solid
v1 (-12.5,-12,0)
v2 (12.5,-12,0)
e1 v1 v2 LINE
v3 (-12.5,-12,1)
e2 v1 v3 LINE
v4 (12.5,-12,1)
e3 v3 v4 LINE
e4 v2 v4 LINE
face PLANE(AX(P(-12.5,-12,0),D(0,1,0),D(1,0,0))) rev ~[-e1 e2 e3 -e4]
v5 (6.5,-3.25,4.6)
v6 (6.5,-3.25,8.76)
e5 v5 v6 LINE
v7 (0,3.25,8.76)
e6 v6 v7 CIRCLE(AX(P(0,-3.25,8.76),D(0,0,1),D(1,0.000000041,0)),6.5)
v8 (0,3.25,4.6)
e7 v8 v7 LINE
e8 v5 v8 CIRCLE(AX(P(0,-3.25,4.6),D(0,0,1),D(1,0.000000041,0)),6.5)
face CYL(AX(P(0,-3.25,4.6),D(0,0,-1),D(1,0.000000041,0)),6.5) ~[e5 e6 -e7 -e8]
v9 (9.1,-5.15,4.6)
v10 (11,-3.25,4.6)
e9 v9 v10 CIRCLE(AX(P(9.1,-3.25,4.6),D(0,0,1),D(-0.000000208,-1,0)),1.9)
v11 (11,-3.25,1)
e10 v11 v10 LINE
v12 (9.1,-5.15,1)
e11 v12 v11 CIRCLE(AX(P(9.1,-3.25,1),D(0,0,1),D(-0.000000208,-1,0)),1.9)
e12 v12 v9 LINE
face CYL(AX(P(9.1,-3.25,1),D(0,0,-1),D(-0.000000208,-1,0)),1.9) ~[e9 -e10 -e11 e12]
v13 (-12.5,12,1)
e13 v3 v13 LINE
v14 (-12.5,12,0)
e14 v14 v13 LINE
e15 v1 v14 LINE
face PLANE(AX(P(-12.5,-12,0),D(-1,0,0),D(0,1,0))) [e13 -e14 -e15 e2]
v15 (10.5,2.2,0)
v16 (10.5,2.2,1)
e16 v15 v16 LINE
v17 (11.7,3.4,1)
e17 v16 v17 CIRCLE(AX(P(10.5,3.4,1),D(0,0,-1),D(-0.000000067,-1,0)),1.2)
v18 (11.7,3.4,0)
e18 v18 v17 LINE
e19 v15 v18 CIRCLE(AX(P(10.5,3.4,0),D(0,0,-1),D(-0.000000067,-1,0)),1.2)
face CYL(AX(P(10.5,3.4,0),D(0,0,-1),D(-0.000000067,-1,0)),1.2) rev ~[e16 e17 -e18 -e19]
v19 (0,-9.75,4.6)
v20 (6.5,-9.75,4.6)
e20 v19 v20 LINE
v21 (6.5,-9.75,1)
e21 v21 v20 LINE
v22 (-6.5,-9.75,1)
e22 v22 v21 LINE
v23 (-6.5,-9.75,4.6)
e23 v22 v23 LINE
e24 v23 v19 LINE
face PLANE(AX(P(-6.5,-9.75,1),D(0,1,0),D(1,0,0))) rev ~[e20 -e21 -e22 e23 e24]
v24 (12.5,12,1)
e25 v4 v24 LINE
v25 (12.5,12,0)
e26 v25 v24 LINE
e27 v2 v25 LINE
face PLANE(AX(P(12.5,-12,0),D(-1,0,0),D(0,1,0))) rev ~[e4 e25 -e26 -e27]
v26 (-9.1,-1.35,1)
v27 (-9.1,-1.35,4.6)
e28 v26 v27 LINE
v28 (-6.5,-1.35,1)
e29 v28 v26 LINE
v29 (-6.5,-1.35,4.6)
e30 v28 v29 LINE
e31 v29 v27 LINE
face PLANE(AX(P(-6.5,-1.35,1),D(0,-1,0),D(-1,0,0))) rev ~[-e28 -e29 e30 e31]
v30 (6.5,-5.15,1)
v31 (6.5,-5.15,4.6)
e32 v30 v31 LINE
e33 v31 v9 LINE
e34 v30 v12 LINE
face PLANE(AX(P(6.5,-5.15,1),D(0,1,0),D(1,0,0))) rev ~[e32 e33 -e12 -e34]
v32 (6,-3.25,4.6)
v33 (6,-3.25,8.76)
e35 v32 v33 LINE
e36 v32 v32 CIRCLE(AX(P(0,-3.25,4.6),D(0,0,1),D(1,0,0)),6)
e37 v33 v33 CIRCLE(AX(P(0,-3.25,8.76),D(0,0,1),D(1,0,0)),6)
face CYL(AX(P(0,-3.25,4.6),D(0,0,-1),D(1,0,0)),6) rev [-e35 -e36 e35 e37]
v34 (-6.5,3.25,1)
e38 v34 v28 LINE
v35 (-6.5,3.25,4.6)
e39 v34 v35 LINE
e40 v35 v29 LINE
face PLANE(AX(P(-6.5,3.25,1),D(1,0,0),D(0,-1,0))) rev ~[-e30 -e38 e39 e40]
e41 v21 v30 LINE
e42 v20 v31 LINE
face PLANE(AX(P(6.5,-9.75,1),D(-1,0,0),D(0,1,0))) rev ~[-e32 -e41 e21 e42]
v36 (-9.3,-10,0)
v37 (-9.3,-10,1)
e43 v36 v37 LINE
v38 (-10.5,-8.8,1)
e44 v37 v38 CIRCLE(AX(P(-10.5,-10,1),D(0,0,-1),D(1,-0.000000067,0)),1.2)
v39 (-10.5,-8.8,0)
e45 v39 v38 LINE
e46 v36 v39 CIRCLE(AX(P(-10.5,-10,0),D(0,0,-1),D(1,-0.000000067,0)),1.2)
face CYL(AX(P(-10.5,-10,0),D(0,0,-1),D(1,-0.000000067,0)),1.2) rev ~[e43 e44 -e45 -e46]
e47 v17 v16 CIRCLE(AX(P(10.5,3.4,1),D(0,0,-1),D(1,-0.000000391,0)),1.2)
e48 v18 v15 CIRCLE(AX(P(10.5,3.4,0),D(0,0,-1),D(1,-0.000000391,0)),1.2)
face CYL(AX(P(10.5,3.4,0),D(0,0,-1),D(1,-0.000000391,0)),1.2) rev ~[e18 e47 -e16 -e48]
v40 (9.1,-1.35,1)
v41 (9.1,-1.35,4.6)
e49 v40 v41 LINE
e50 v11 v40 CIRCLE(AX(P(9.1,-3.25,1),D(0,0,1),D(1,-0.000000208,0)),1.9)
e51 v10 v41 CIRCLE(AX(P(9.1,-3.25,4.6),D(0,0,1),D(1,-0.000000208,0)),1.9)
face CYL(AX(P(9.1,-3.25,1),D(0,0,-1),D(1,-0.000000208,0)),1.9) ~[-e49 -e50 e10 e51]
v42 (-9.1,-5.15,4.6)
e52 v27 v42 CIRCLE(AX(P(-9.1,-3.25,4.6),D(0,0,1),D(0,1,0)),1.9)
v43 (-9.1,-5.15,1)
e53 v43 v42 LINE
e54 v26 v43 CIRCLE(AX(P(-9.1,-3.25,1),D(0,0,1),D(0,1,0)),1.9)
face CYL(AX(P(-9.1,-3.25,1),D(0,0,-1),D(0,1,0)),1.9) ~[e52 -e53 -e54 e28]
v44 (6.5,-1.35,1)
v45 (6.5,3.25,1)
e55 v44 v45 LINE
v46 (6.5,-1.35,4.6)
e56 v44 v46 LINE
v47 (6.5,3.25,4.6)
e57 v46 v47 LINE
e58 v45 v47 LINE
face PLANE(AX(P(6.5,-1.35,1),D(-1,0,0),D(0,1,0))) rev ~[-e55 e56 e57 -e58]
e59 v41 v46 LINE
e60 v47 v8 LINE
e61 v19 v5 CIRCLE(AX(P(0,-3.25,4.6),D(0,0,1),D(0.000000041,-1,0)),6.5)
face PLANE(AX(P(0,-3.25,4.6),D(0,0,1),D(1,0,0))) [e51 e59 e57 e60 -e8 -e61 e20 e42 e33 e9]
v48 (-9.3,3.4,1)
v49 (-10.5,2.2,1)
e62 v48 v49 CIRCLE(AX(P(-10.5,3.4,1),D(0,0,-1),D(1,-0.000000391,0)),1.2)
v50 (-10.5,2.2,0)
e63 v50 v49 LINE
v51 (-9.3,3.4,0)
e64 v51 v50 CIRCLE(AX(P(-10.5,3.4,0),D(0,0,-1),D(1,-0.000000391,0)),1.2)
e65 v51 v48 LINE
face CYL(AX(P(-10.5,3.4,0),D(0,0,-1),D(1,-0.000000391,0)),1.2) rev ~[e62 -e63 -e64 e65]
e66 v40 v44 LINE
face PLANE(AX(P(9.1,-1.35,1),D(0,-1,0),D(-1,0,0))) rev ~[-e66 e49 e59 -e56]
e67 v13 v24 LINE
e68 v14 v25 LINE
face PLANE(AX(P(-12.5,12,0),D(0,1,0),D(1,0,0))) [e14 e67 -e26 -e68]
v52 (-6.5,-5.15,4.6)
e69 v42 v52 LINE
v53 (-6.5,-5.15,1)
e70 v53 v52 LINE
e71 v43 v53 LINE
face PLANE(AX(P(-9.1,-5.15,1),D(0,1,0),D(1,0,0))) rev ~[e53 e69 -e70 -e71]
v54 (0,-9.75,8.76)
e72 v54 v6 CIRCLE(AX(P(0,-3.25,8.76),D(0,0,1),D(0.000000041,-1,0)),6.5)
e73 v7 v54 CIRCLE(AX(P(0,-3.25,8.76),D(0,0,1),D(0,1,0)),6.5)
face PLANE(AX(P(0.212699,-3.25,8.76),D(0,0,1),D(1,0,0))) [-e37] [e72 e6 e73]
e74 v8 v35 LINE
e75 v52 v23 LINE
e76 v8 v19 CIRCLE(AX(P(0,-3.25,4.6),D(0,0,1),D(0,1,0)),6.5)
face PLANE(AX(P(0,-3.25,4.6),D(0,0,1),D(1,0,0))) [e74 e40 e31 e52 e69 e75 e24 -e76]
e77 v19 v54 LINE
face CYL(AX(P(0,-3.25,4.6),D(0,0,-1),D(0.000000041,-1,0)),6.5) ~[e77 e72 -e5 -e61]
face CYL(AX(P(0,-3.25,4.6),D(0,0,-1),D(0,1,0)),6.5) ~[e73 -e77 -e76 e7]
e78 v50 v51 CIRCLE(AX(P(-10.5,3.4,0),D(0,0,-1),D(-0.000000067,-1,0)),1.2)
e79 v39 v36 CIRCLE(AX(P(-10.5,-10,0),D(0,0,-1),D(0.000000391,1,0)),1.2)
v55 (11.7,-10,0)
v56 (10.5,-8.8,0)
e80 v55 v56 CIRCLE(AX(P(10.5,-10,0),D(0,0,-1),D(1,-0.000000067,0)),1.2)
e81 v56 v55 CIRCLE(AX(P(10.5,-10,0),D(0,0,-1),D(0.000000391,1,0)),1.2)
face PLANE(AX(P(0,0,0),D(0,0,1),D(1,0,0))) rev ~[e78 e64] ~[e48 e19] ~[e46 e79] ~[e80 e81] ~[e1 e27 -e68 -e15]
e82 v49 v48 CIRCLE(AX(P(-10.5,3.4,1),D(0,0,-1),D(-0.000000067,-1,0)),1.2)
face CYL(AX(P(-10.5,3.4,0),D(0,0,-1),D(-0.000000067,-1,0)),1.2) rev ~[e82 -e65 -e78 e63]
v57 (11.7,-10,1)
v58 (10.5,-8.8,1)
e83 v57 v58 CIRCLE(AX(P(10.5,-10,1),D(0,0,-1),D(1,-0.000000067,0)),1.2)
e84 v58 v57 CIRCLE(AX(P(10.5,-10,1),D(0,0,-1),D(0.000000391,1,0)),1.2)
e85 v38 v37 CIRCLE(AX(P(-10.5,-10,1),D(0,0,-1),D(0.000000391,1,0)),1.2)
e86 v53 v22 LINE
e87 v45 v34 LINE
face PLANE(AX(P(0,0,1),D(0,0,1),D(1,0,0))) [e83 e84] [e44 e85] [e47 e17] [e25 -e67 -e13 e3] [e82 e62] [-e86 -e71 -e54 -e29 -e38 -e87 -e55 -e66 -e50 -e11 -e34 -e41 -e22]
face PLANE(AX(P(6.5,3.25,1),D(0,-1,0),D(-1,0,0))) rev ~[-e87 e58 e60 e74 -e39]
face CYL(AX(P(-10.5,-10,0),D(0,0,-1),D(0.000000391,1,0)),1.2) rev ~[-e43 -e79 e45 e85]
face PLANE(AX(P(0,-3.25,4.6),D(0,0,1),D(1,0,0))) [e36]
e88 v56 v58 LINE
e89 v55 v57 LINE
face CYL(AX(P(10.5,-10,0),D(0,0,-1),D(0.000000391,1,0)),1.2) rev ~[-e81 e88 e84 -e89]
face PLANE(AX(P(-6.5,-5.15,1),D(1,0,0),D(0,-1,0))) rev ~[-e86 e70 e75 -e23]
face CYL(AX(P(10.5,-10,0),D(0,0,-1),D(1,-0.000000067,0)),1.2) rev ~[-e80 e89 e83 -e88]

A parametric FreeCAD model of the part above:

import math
import FreeCAD as App
import Part
import Sketcher
from FreeCAD import Vector
Q = App.Units.Quantity


def add_polygon(sketch, points):
    """Adds a closed chain of lines whose ends are joined by coincident constraints."""
    first, n = sketch.GeometryCount, len(points)
    for a, b in zip(points, points[1:] + points[:1]):
        sketch.addGeometry(Part.LineSegment(App.Vector(*a, 0), App.Vector(*b, 0)), False)
    for i in range(n):
        sketch.addConstraint(Sketcher.Constraint("Coincident", first + i, 2, first + (i + 1) % n, 1))

doc = App.newDocument("Part")
body = doc.addObject("PartDesign::Body", "Body")

# Sketch on XY plane
sketch1 = doc.addObject("Sketcher::SketchObject", "Sketch")
body.addObject(sketch1)
sketch1.AttachmentSupport = (doc.XY_Plane, [""])
sketch1.MapMode = "FlatFace"
add_polygon(sketch1, [(-12.5, 12), (-12.5, -12), (12.5, -12), (12.5, 12)])  # lines 0-3
sketch1.addGeometry(Part.ArcOfCircle(Part.Circle(Vector(-10.5, -10, 0), Vector(0, 0, 1), 1.2), math.radians(0), math.radians(90)), False)  # 4
sketch1.addGeometry(Part.ArcOfCircle(Part.Circle(Vector(-10.5, -10, 0), Vector(0, 0, 1), 1.2), math.radians(90), math.radians(360)), False)  # 5
sketch1.addGeometry(Part.ArcOfCircle(Part.Circle(Vector(10.5, -10, 0), Vector(0, 0, 1), 1.2), math.radians(90), math.radians(360)), False)  # 6
sketch1.addGeometry(Part.ArcOfCircle(Part.Circle(Vector(10.5, -10, 0), Vector(0, 0, 1), 1.2), math.radians(0), math.radians(90)), False)  # 7
sketch1.addGeometry(Part.ArcOfCircle(Part.Circle(Vector(-10.5, 3.4, 0), Vector(0, 0, 1), 1.2), math.radians(-90), math.radians(0)), False)  # 8
sketch1.addGeometry(Part.ArcOfCircle(Part.Circle(Vector(-10.5, 3.4, 0), Vector(0, 0, 1), 1.2), math.radians(0), math.radians(270)), False)  # 9
sketch1.addGeometry(Part.ArcOfCircle(Part.Circle(Vector(10.5, 3.4, 0), Vector(0, 0, 1), 1.2), math.radians(0), math.radians(270)), False)  # 10
sketch1.addGeometry(Part.ArcOfCircle(Part.Circle(Vector(10.5, 3.4, 0), Vector(0, 0, 1), 1.2), math.radians(-90), math.radians(0)), False)  # 11
sketch1.addConstraint([
    Sketcher.Constraint("Tangent", 4, 1, 5, 2),
    Sketcher.Constraint("Coincident", 5, 1, 4, 2),
    Sketcher.Constraint("Tangent", 6, 1, 7, 2),
    Sketcher.Constraint("Coincident", 7, 1, 6, 2),
    Sketcher.Constraint("Tangent", 8, 1, 9, 2),
    Sketcher.Constraint("Coincident", 9, 1, 8, 2),
    Sketcher.Constraint("Tangent", 10, 1, 11, 2),
    Sketcher.Constraint("Coincident", 11, 1, 10, 2),
    Sketcher.Constraint("Vertical", 0),
    Sketcher.Constraint("Horizontal", 1),
    Sketcher.Constraint("Vertical", 2),
    Sketcher.Constraint("Horizontal", 3),
    Sketcher.Constraint("Equal", 5, 6),
    Sketcher.Constraint("Equal", 7, 8),
    Sketcher.Constraint("Equal", 9, 10),
    Sketcher.Constraint("Symmetric", 0, 2, 2, 2, -1, 1),
    Sketcher.Constraint("Symmetric", 4, 3, 6, 3, -2),
    Sketcher.Constraint("Symmetric", 8, 3, 10, 3, -2),
    Sketcher.Constraint("Horizontal", 7, 3, 4, 1),
    Sketcher.Constraint("Horizontal", 4, 1, 7, 1),
    Sketcher.Constraint("Horizontal", 11, 3, 9, 1),
    Sketcher.Constraint("Horizontal", 9, 1, 10, 1),
    Sketcher.Constraint("Vertical", 5, 3, 8, 3),
    Sketcher.Constraint("Vertical", 9, 3, 5, 1),
    Sketcher.Constraint("Vertical", 11, 3, 6, 1),
    Sketcher.Constraint("Vertical", 5, 1, 8, 1),
    Sketcher.Constraint("Vertical", 6, 1, 11, 1),
    Sketcher.Constraint("Radius", 4, Q("1.2 mm")),
    Sketcher.Constraint("DistanceX", 1, 1, 1, 2, Q("25 mm")),
    Sketcher.Constraint("DistanceY", 0, 2, 0, 1, Q("24 mm")),
    Sketcher.Constraint("DistanceY", 4, 3, -1, 1, Q("10 mm")),
    Sketcher.Constraint("DistanceX", 5, 3, 6, 3, Q("21 mm")),
    Sketcher.Constraint("DistanceY", 5, 1, 8, 1, Q("11 mm")),
])
pad1 = doc.addObject("PartDesign::Pad", "Pad")
body.addObject(pad1)
pad1.Profile = sketch1
pad1.Length = 1

# Sketch on XY plane
sketch2 = doc.addObject("Sketcher::SketchObject", "Sketch001")
body.addObject(sketch2)
sketch2.AttachmentSupport = (doc.XY_Plane, [""])
sketch2.MapMode = "FlatFace"
sketch2.AttachmentOffset = App.Placement(Vector(0, 0, 1), App.Rotation())
sketch2.addGeometry([
    Part.LineSegment(Vector(6.5, 3.2, 0), Vector(-6.5, 3.2, 0)),  # 0
    Part.LineSegment(Vector(-6.5, 3.2, 0), Vector(-6.5, -1.4, 0)),  # 1
    Part.LineSegment(Vector(-6.5, -1.4, 0), Vector(-9.1, -1.4, 0)),  # 2
    Part.ArcOfCircle(Part.Circle(Vector(-9.1, -3.2, 0), Vector(0, 0, 1), 1.9), math.radians(90), math.radians(270)),  # 3
    Part.LineSegment(Vector(-9.1, -5.2, 0), Vector(-6.5, -5.2, 0)),  # 4
    Part.LineSegment(Vector(-6.5, -5.2, 0), Vector(-6.5, -9.8, 0)),  # 5
    Part.LineSegment(Vector(-6.5, -9.8, 0), Vector(6.5, -9.8, 0)),  # 6
    Part.LineSegment(Vector(6.5, -9.8, 0), Vector(6.5, -5.2, 0)),  # 7
    Part.LineSegment(Vector(6.5, -5.2, 0), Vector(9.1, -5.2, 0)),  # 8
    Part.ArcOfCircle(Part.Circle(Vector(9.1, -3.3, 0), Vector(0, 0, 1), 1.9), math.radians(-90), math.radians(0)),  # 9
    Part.ArcOfCircle(Part.Circle(Vector(9.1, -3.2, 0), Vector(0, 0, 1), 1.9), math.radians(0), math.radians(90)),  # 10
    Part.LineSegment(Vector(9.1, -1.4, 0), Vector(6.5, -1.4, 0)),  # 11
    Part.LineSegment(Vector(6.5, -1.4, 0), Vector(6.5, 3.2, 0)),  # 12
], False)
sketch2.addConstraint([
    Sketcher.Constraint("Coincident", 0, 2, 1, 1),
    Sketcher.Constraint("Coincident", 1, 2, 2, 1),
    Sketcher.Constraint("Tangent", 2, 2, 3, 1),
    Sketcher.Constraint("Tangent", 3, 2, 4, 1),
    Sketcher.Constraint("Coincident", 4, 2, 5, 1),
    Sketcher.Constraint("Coincident", 5, 2, 6, 1),
    Sketcher.Constraint("Coincident", 6, 2, 7, 1),
    Sketcher.Constraint("Coincident", 7, 2, 8, 1),
    Sketcher.Constraint("Tangent", 8, 2, 9, 1),
    Sketcher.Constraint("Tangent", 9, 2, 10, 1),
    Sketcher.Constraint("Tangent", 10, 2, 11, 1),
    Sketcher.Constraint("Coincident", 11, 2, 12, 1),
    Sketcher.Constraint("Coincident", 12, 2, 0, 1),
    Sketcher.Constraint("Horizontal", 0),
    Sketcher.Constraint("Vertical", 1),
    Sketcher.Constraint("Horizontal", 2),
    Sketcher.Constraint("Horizontal", 4),
    Sketcher.Constraint("Vertical", 5),
    Sketcher.Constraint("Horizontal", 6),
    Sketcher.Constraint("Vertical", 7),
    Sketcher.Constraint("Horizontal", 8),
    Sketcher.Constraint("Horizontal", 11),
    Sketcher.Constraint("Vertical", 12),
    Sketcher.Constraint("Equal", 3, 9),
    Sketcher.Constraint("Equal", 9, 10),
    Sketcher.Constraint("Symmetric", 3, 3, 9, 3, -2),
    Sketcher.Constraint("Horizontal", 10, 3, 9, 2),
    Sketcher.Constraint("Vertical", 1, 2, 4, 2),
    Sketcher.Constraint("Vertical", 7, 2, 11, 2),
    Sketcher.Constraint("Equal", 4, 8),
    Sketcher.Constraint("Equal", 1, 5),
    Sketcher.Constraint("Radius", 3, Q("1.9 mm")),
    Sketcher.Constraint("DistanceX", 0, 2, 0, 1, Q("13 mm")),
    Sketcher.Constraint("DistanceX", 2, 2, 2, 1, Q("2.6 mm")),
    Sketcher.Constraint("DistanceY", 1, 2, 1, 1, Q("4.6 mm")),
    Sketcher.Constraint("DistanceY", 3, 3, -1, 1, Q("3.25 mm")),
])
pad2 = doc.addObject("PartDesign::Pad", "Pad001")
body.addObject(pad2)
pad2.Profile = sketch2
pad2.Length = 3.6

# Sketch on XY plane
sketch3 = doc.addObject("Sketcher::SketchObject", "Sketch002")
body.addObject(sketch3)
sketch3.AttachmentSupport = (doc.XY_Plane, [""])
sketch3.MapMode = "FlatFace"
sketch3.AttachmentOffset = App.Placement(Vector(0, 0, 4.6), App.Rotation())
sketch3.addGeometry([
    Part.ArcOfCircle(Part.Circle(Vector(0, -3, 0), Vector(0, 0, 1), 7), math.radians(-90), math.radians(0)),
    Part.ArcOfCircle(Part.Circle(Vector(0, -3, 0), Vector(0, 0, 1), 7), math.radians(0), math.radians(90)),
    Part.ArcOfCircle(Part.Circle(Vector(0, -3, 0), Vector(0, 0, 1), 6), math.radians(90), math.radians(270)),
    Part.Circle(Vector(0, -3, 0), Vector(0, 0, 1), 6),
], False)
sketch3.addConstraint([
    Sketcher.Constraint("Tangent", 0, 2, 1, 1),
    Sketcher.Constraint("Tangent", 1, 2, 2, 1),
    Sketcher.Constraint("Tangent", 2, 2, 0, 1),
    Sketcher.Constraint("Coincident", 3, 3, 0, 3),
    Sketcher.Constraint("PointOnObject", 0, 3, -2),
    Sketcher.Constraint("PointOnObject", 1, 2, -2),
    Sketcher.Constraint("PointOnObject", 2, 2, -2),
    Sketcher.Constraint("Horizontal", 3, 3, 0, 2),
    Sketcher.Constraint("Diameter", 3, Q("12 mm")),
    Sketcher.Constraint("Radius", 0, Q("6.5 mm")),
    Sketcher.Constraint("DistanceY", 0, 3, -1, 1, Q("3.25 mm")),
])
pad3 = doc.addObject("PartDesign::Pad", "Pad002")
body.addObject(pad3)
pad3.Profile = sketch3
pad3.Length = 4.16

doc.recompute()
